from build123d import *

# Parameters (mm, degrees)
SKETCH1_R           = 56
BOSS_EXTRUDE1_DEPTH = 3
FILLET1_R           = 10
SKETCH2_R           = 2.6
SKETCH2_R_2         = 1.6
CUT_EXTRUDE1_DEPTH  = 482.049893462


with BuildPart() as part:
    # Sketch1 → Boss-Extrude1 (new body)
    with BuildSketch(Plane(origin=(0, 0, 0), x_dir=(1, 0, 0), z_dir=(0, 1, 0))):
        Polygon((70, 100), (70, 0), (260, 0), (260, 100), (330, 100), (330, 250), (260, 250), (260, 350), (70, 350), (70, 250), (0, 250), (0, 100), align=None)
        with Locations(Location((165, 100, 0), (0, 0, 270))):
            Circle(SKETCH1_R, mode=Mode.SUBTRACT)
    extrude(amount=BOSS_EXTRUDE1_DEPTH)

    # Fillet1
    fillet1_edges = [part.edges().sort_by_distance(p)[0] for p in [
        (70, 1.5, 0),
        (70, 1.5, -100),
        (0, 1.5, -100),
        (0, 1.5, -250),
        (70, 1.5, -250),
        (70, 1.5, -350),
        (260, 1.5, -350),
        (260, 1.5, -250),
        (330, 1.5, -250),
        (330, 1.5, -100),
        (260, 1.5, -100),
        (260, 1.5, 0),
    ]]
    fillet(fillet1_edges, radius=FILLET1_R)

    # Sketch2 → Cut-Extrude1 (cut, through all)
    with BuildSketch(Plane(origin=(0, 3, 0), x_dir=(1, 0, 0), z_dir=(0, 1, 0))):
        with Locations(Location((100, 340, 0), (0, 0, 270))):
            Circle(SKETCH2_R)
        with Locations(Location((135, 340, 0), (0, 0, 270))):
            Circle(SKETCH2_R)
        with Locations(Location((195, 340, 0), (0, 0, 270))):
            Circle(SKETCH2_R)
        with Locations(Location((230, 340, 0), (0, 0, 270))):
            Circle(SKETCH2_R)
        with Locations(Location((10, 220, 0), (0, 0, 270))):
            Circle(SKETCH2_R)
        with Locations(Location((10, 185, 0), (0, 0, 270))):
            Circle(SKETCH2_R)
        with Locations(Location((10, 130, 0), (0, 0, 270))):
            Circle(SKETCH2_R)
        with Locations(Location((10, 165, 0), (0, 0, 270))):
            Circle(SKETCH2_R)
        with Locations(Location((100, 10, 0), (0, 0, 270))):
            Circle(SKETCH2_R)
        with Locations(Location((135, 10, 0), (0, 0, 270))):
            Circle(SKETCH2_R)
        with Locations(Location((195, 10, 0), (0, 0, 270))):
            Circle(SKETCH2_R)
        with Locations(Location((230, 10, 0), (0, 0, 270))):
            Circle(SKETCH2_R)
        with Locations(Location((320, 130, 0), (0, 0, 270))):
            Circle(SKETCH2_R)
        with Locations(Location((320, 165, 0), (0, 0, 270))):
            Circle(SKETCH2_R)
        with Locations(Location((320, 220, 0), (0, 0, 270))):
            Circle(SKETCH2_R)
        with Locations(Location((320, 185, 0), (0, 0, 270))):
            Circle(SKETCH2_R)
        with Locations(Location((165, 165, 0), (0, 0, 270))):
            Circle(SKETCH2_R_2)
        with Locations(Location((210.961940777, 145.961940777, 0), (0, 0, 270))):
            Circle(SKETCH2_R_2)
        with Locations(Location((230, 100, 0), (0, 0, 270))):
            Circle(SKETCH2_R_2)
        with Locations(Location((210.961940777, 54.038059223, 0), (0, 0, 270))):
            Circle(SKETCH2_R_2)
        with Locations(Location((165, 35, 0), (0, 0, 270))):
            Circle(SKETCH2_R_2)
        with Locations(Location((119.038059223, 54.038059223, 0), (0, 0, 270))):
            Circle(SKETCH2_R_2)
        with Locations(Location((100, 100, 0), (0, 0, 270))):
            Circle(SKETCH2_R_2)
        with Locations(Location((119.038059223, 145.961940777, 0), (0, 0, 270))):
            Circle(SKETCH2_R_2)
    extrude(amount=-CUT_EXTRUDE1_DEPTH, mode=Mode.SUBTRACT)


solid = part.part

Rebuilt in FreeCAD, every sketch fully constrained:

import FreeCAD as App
import Part
import Sketcher


def edges_at(feature, points):
    """Names of the edges that pass closest to the given points."""
    edges = feature.Shape.Edges
    near = lambda p: min(range(len(edges)), key=lambda i: edges[i].distToShape(Part.Vertex(*p))[0])
    return sorted({f"Edge{near(p) + 1}" for p in points})


def add_polygon(sketch, points):
    """Adds a closed chain of lines whose ends are joined by coincident constraints."""
    first, n = sketch.GeometryCount, len(points)
    for a, b in zip(points, points[1:] + points[:1]):
        sketch.addGeometry(Part.LineSegment(App.Vector(*a, 0), App.Vector(*b, 0)), False)
    for i in range(n):
        sketch.addConstraint(Sketcher.Constraint("Coincident", first + i, 2, first + (i + 1) % n, 1))

doc = App.newDocument("Part")
body = doc.addObject("PartDesign::Body", "Body")

# Sketch on XZ plane
sketch1 = body.newObject("Sketcher::SketchObject", "Sketch")
sketch1.AttachmentSupport = (doc.getObject("XZ_Plane"), [""])
sketch1.MapMode = "FlatFace"
add_polygon(sketch1, [(70, -100), (70, 0), (260, 0), (260, -100), (330, -100), (330, -250), (260, -250), (260, -350), (70, -350), (70, -250), (0, -250), (0, -100)])  # lines 0-11
sketch1.addGeometry(Part.Circle(App.Vector(165, -100, 0), App.Vector(0, 0, 1), 56), False)  # 12
sketch1.addConstraint(Sketcher.Constraint("Vertical", 0))
sketch1.addConstraint(Sketcher.Constraint("Horizontal", 1))
sketch1.addConstraint(Sketcher.Constraint("Vertical", 2))
sketch1.addConstraint(Sketcher.Constraint("Horizontal", 3))
sketch1.addConstraint(Sketcher.Constraint("Vertical", 4))
sketch1.addConstraint(Sketcher.Constraint("Horizontal", 5))
sketch1.addConstraint(Sketcher.Constraint("Vertical", 6))
sketch1.addConstraint(Sketcher.Constraint("Horizontal", 7))
sketch1.addConstraint(Sketcher.Constraint("Vertical", 8))
sketch1.addConstraint(Sketcher.Constraint("Horizontal", 9))
sketch1.addConstraint(Sketcher.Constraint("Vertical", 10))
sketch1.addConstraint(Sketcher.Constraint("Horizontal", 11))
sketch1.addConstraint(Sketcher.Constraint("PointOnObject", 0, 2, -1))
sketch1.addConstraint(Sketcher.Constraint("PointOnObject", 9, 2, -2))
sketch1.addConstraint(Sketcher.Constraint("Horizontal", 12, 3, 2, 2))
sketch1.addConstraint(Sketcher.Constraint("Horizontal", 5, 2, 8, 2))
sketch1.addConstraint(Sketcher.Constraint("Horizontal", 3, 2, 10, 2))
sketch1.addConstraint(Sketcher.Constraint("Vertical", 2, 2, 5, 2))
sketch1.addConstraint(Sketcher.Constraint("Vertical", 0, 2, 7, 2))
sketch1.addConstraint(Sketcher.Constraint("Equal", 5, 9))
sketch1.addConstraint(Sketcher.Constraint("Equal", 2, 6))
sketch1.addConstraint(Sketcher.Constraint("Diameter", 12, 112.0))
sketch1.addConstraint(Sketcher.Constraint("DistanceX", 1, 1, 1, 2, 190.0))
sketch1.addConstraint(Sketcher.Constraint("DistanceX", 3, 1, 3, 2, 70.0))
sketch1.addConstraint(Sketcher.Constraint("DistanceY", 0, 1, 0, 2, 100.0))
sketch1.addConstraint(Sketcher.Constraint("DistanceY", 4, 2, 4, 1, 150.0))
sketch1.addConstraint(Sketcher.Constraint("DistanceX", -1, 1, 12, 3, 165.0))
pad1 = body.newObject("PartDesign::Pad", "Pad")
pad1.Profile = sketch1
pad1.Length = 3
pad1.Reversed = True
doc.recompute()

fillet = body.newObject("PartDesign::Fillet", "Fillet")
fillet.Base = (pad1, edges_at(pad1, [
    (70, 1.5, 0),
    (70, 1.5, -100),
    (0, 1.5, -100),
    (0, 1.5, -250),
    (70, 1.5, -250),
    (70, 1.5, -350),
    (260, 1.5, -350),
    (260, 1.5, -250),
    (330, 1.5, -250),
    (330, 1.5, -100),
    (260, 1.5, -100),
    (260, 1.5, 0),
]))
fillet.Radius = 10

# Sketch on XZ plane
sketch2 = body.newObject("Sketcher::SketchObject", "Sketch001")
sketch2.AttachmentSupport = (doc.getObject("XZ_Plane"), [""])
sketch2.MapMode = "FlatFace"
sketch2.AttachmentOffset = App.Placement(App.Vector(0, 0, -3), App.Rotation())
sketch2.addGeometry(Part.Circle(App.Vector(100, -340, 0), App.Vector(0, 0, 1), 2.6), False)
sketch2.addGeometry(Part.Circle(App.Vector(135, -340, 0), App.Vector(0, 0, 1), 2.6), False)
sketch2.addGeometry(Part.Circle(App.Vector(195, -340, 0), App.Vector(0, 0, 1), 2.6), False)
sketch2.addGeometry(Part.Circle(App.Vector(230, -340, 0), App.Vector(0, 0, 1), 2.6), False)
sketch2.addGeometry(Part.Circle(App.Vector(10, -220, 0), App.Vector(0, 0, 1), 2.6), False)
sketch2.addGeometry(Part.Circle(App.Vector(10, -185, 0), App.Vector(0, 0, 1), 2.6), False)
sketch2.addGeometry(Part.Circle(App.Vector(10, -130, 0), App.Vector(0, 0, 1), 2.6), False)
sketch2.addGeometry(Part.Circle(App.Vector(10, -165, 0), App.Vector(0, 0, 1), 2.6), False)
sketch2.addGeometry(Part.Circle(App.Vector(100, -10, 0), App.Vector(0, 0, 1), 2.6), False)
sketch2.addGeometry(Part.Circle(App.Vector(135, -10, 0), App.Vector(0, 0, 1), 2.6), False)
sketch2.addGeometry(Part.Circle(App.Vector(195, -10, 0), App.Vector(0, 0, 1), 2.6), False)
sketch2.addGeometry(Part.Circle(App.Vector(230, -10, 0), App.Vector(0, 0, 1), 2.6), False)
sketch2.addGeometry(Part.Circle(App.Vector(320, -130, 0), App.Vector(0, 0, 1), 2.6), False)
sketch2.addGeometry(Part.Circle(App.Vector(320, -165, 0), App.Vector(0, 0, 1), 2.6), False)
sketch2.addGeometry(Part.Circle(App.Vector(320, -220, 0), App.Vector(0, 0, 1), 2.6), False)
sketch2.addGeometry(Part.Circle(App.Vector(320, -185, 0), App.Vector(0, 0, 1), 2.6), False)
sketch2.addGeometry(Part.Circle(App.Vector(165, -165, 0), App.Vector(0, 0, 1), 1.6), False)
sketch2.addGeometry(Part.Circle(App.Vector(211, -146, 0), App.Vector(0, 0, 1), 1.6), False)
sketch2.addGeometry(Part.Circle(App.Vector(230, -100, 0), App.Vector(0, 0, 1), 1.6), False)
sketch2.addGeometry(Part.Circle(App.Vector(211, -54, 0), App.Vector(0, 0, 1), 1.6), False)
sketch2.addGeometry(Part.Circle(App.Vector(165, -35, 0), App.Vector(0, 0, 1), 1.6), False)
sketch2.addGeometry(Part.Circle(App.Vector(119, -54, 0), App.Vector(0, 0, 1), 1.6), False)
sketch2.addGeometry(Part.Circle(App.Vector(100, -100, 0), App.Vector(0, 0, 1), 1.6), False)
sketch2.addGeometry(Part.Circle(App.Vector(119, -146, 0), App.Vector(0, 0, 1), 1.6), False)
sketch2.addConstraint(Sketcher.Constraint("Equal", 0, 1))
sketch2.addConstraint(Sketcher.Constraint("Equal", 1, 2))
sketch2.addConstraint(Sketcher.Constraint("Equal", 2, 3))
sketch2.addConstraint(Sketcher.Constraint("Equal", 3, 4))
sketch2.addConstraint(Sketcher.Constraint("Equal", 4, 5))
sketch2.addConstraint(Sketcher.Constraint("Equal", 5, 6))
sketch2.addConstraint(Sketcher.Constraint("Equal", 6, 7))
sketch2.addConstraint(Sketcher.Constraint("Equal", 7, 8))
sketch2.addConstraint(Sketcher.Constraint("Equal", 8, 9))
sketch2.addConstraint(Sketcher.Constraint("Equal", 9, 10))
sketch2.addConstraint(Sketcher.Constraint("Equal", 10, 11))
sketch2.addConstraint(Sketcher.Constraint("Equal", 11, 12))
sketch2.addConstraint(Sketcher.Constraint("Equal", 12, 13))
sketch2.addConstraint(Sketcher.Constraint("Equal", 13, 14))
sketch2.addConstraint(Sketcher.Constraint("Equal", 14, 15))
sketch2.addConstraint(Sketcher.Constraint("Equal", 16, 17))
sketch2.addConstraint(Sketcher.Constraint("Equal", 17, 18))
sketch2.addConstraint(Sketcher.Constraint("Equal", 18, 19))
sketch2.addConstraint(Sketcher.Constraint("Equal", 19, 20))
sketch2.addConstraint(Sketcher.Constraint("Equal", 20, 21))
sketch2.addConstraint(Sketcher.Constraint("Equal", 21, 22))
sketch2.addConstraint(Sketcher.Constraint("Equal", 22, 23))
sketch2.addConstraint(Sketcher.Constraint("Horizontal", 0, 3, 1, 3))
sketch2.addConstraint(Sketcher.Constraint("Horizontal", 1, 3, 2, 3))
sketch2.addConstraint(Sketcher.Constraint("Horizontal", 2, 3, 3, 3))
sketch2.addConstraint(Sketcher.Constraint("Horizontal", 8, 3, 9, 3))
sketch2.addConstraint(Sketcher.Constraint("Horizontal", 9, 3, 10, 3))
sketch2.addConstraint(Sketcher.Constraint("Horizontal", 10, 3, 11, 3))
sketch2.addConstraint(Sketcher.Constraint("Horizontal", 6, 3, 12, 3))
sketch2.addConstraint(Sketcher.Constraint("Horizontal", 7, 3, 13, 3))
sketch2.addConstraint(Sketcher.Constraint("Horizontal", 4, 3, 14, 3))
sketch2.addConstraint(Sketcher.Constraint("Horizontal", 5, 3, 15, 3))
sketch2.addConstraint(Sketcher.Constraint("Horizontal", 13, 3, 16, 3))
sketch2.addConstraint(Sketcher.Constraint("Horizontal", 19, 3, 21, 3))
sketch2.addConstraint(Sketcher.Constraint("Horizontal", 18, 3, 22, 3))
sketch2.addConstraint(Sketcher.Constraint("Horizontal", 17, 3, 23, 3))
sketch2.addConstraint(Sketcher.Constraint("Vertical", 4, 3, 5, 3))
sketch2.addConstraint(Sketcher.Constraint("Vertical", 5, 3, 6, 3))
sketch2.addConstraint(Sketcher.Constraint("Vertical", 6, 3, 7, 3))
sketch2.addConstraint(Sketcher.Constraint("Vertical", 0, 3, 8, 3))
sketch2.addConstraint(Sketcher.Constraint("Vertical", 1, 3, 9, 3))
sketch2.addConstraint(Sketcher.Constraint("Vertical", 2, 3, 10, 3))
sketch2.addConstraint(Sketcher.Constraint("Vertical", 3, 3, 11, 3))
sketch2.addConstraint(Sketcher.Constraint("Vertical", 12, 3, 13, 3))
sketch2.addConstraint(Sketcher.Constraint("Vertical", 13, 3, 14, 3))
sketch2.addConstraint(Sketcher.Constraint("Vertical", 14, 3, 15, 3))
sketch2.addConstraint(Sketcher.Constraint("Vertical", 11, 3, 18, 3))
sketch2.addConstraint(Sketcher.Constraint("Vertical", 17, 3, 19, 3))
sketch2.addConstraint(Sketcher.Constraint("Vertical", 16, 3, 20, 3))
sketch2.addConstraint(Sketcher.Constraint("Vertical", 8, 3, 22, 3))
sketch2.addConstraint(Sketcher.Constraint("Vertical", 21, 3, 23, 3))
sketch2.addConstraint(Sketcher.Constraint("Diameter", 0, 5.2))
sketch2.addConstraint(Sketcher.Constraint("Diameter", 16, 3.2))
sketch2.addConstraint(Sketcher.Constraint("DistanceX", -1, 1, 0, 3, 100.0))
sketch2.addConstraint(Sketcher.Constraint("DistanceY", 0, 3, -1, 1, 340.0))
sketch2.addConstraint(Sketcher.Constraint("DistanceX", -1, 1, 1, 3, 135.0))
sketch2.addConstraint(Sketcher.Constraint("DistanceX", -1, 1, 2, 3, 195.0))
sketch2.addConstraint(Sketcher.Constraint("DistanceX", -1, 1, 3, 3, 230.0))
sketch2.addConstraint(Sketcher.Constraint("DistanceX", -1, 1, 4, 3, 10.0))
sketch2.addConstraint(Sketcher.Constraint("DistanceY", 4, 3, -1, 1, 220.0))
sketch2.addConstraint(Sketcher.Constraint("DistanceY", 5, 3, -1, 1, 185.0))
sketch2.addConstraint(Sketcher.Constraint("DistanceY", 6, 3, -1, 1, 130.0))
sketch2.addConstraint(Sketcher.Constraint("DistanceY", 7, 3, -1, 1, 165.0))
sketch2.addConstraint(Sketcher.Constraint("DistanceY", 8, 3, -1, 1, 10.0))
sketch2.addConstraint(Sketcher.Constraint("DistanceX", -1, 1, 12, 3, 320.0))
sketch2.addConstraint(Sketcher.Constraint("DistanceX", -1, 1, 16, 3, 165.0))
sketch2.addConstraint(Sketcher.Constraint("DistanceY", 18, 3, -1, 1, 100.0))
sketch2.addConstraint(Sketcher.Constraint("DistanceY", 20, 3, -1, 1, 35.0))
sketch2.addConstraint(Sketcher.Constraint("DistanceX", -1, 1, 17, 3, 210.961941))
sketch2.addConstraint(Sketcher.Constraint("DistanceY", 17, 3, -1, 1, 145.961941))
sketch2.addConstraint(Sketcher.Constraint("DistanceY", 19, 3, -1, 1, 54.038059))
sketch2.addConstraint(Sketcher.Constraint("DistanceX", -1, 1, 21, 3, 119.038059))
pocket1 = body.newObject("PartDesign::Pocket", "Pocket")
pocket1.Profile = sketch2
pocket1.Type = "ThroughAll"
pocket1.Reversed = True

doc.recompute()
